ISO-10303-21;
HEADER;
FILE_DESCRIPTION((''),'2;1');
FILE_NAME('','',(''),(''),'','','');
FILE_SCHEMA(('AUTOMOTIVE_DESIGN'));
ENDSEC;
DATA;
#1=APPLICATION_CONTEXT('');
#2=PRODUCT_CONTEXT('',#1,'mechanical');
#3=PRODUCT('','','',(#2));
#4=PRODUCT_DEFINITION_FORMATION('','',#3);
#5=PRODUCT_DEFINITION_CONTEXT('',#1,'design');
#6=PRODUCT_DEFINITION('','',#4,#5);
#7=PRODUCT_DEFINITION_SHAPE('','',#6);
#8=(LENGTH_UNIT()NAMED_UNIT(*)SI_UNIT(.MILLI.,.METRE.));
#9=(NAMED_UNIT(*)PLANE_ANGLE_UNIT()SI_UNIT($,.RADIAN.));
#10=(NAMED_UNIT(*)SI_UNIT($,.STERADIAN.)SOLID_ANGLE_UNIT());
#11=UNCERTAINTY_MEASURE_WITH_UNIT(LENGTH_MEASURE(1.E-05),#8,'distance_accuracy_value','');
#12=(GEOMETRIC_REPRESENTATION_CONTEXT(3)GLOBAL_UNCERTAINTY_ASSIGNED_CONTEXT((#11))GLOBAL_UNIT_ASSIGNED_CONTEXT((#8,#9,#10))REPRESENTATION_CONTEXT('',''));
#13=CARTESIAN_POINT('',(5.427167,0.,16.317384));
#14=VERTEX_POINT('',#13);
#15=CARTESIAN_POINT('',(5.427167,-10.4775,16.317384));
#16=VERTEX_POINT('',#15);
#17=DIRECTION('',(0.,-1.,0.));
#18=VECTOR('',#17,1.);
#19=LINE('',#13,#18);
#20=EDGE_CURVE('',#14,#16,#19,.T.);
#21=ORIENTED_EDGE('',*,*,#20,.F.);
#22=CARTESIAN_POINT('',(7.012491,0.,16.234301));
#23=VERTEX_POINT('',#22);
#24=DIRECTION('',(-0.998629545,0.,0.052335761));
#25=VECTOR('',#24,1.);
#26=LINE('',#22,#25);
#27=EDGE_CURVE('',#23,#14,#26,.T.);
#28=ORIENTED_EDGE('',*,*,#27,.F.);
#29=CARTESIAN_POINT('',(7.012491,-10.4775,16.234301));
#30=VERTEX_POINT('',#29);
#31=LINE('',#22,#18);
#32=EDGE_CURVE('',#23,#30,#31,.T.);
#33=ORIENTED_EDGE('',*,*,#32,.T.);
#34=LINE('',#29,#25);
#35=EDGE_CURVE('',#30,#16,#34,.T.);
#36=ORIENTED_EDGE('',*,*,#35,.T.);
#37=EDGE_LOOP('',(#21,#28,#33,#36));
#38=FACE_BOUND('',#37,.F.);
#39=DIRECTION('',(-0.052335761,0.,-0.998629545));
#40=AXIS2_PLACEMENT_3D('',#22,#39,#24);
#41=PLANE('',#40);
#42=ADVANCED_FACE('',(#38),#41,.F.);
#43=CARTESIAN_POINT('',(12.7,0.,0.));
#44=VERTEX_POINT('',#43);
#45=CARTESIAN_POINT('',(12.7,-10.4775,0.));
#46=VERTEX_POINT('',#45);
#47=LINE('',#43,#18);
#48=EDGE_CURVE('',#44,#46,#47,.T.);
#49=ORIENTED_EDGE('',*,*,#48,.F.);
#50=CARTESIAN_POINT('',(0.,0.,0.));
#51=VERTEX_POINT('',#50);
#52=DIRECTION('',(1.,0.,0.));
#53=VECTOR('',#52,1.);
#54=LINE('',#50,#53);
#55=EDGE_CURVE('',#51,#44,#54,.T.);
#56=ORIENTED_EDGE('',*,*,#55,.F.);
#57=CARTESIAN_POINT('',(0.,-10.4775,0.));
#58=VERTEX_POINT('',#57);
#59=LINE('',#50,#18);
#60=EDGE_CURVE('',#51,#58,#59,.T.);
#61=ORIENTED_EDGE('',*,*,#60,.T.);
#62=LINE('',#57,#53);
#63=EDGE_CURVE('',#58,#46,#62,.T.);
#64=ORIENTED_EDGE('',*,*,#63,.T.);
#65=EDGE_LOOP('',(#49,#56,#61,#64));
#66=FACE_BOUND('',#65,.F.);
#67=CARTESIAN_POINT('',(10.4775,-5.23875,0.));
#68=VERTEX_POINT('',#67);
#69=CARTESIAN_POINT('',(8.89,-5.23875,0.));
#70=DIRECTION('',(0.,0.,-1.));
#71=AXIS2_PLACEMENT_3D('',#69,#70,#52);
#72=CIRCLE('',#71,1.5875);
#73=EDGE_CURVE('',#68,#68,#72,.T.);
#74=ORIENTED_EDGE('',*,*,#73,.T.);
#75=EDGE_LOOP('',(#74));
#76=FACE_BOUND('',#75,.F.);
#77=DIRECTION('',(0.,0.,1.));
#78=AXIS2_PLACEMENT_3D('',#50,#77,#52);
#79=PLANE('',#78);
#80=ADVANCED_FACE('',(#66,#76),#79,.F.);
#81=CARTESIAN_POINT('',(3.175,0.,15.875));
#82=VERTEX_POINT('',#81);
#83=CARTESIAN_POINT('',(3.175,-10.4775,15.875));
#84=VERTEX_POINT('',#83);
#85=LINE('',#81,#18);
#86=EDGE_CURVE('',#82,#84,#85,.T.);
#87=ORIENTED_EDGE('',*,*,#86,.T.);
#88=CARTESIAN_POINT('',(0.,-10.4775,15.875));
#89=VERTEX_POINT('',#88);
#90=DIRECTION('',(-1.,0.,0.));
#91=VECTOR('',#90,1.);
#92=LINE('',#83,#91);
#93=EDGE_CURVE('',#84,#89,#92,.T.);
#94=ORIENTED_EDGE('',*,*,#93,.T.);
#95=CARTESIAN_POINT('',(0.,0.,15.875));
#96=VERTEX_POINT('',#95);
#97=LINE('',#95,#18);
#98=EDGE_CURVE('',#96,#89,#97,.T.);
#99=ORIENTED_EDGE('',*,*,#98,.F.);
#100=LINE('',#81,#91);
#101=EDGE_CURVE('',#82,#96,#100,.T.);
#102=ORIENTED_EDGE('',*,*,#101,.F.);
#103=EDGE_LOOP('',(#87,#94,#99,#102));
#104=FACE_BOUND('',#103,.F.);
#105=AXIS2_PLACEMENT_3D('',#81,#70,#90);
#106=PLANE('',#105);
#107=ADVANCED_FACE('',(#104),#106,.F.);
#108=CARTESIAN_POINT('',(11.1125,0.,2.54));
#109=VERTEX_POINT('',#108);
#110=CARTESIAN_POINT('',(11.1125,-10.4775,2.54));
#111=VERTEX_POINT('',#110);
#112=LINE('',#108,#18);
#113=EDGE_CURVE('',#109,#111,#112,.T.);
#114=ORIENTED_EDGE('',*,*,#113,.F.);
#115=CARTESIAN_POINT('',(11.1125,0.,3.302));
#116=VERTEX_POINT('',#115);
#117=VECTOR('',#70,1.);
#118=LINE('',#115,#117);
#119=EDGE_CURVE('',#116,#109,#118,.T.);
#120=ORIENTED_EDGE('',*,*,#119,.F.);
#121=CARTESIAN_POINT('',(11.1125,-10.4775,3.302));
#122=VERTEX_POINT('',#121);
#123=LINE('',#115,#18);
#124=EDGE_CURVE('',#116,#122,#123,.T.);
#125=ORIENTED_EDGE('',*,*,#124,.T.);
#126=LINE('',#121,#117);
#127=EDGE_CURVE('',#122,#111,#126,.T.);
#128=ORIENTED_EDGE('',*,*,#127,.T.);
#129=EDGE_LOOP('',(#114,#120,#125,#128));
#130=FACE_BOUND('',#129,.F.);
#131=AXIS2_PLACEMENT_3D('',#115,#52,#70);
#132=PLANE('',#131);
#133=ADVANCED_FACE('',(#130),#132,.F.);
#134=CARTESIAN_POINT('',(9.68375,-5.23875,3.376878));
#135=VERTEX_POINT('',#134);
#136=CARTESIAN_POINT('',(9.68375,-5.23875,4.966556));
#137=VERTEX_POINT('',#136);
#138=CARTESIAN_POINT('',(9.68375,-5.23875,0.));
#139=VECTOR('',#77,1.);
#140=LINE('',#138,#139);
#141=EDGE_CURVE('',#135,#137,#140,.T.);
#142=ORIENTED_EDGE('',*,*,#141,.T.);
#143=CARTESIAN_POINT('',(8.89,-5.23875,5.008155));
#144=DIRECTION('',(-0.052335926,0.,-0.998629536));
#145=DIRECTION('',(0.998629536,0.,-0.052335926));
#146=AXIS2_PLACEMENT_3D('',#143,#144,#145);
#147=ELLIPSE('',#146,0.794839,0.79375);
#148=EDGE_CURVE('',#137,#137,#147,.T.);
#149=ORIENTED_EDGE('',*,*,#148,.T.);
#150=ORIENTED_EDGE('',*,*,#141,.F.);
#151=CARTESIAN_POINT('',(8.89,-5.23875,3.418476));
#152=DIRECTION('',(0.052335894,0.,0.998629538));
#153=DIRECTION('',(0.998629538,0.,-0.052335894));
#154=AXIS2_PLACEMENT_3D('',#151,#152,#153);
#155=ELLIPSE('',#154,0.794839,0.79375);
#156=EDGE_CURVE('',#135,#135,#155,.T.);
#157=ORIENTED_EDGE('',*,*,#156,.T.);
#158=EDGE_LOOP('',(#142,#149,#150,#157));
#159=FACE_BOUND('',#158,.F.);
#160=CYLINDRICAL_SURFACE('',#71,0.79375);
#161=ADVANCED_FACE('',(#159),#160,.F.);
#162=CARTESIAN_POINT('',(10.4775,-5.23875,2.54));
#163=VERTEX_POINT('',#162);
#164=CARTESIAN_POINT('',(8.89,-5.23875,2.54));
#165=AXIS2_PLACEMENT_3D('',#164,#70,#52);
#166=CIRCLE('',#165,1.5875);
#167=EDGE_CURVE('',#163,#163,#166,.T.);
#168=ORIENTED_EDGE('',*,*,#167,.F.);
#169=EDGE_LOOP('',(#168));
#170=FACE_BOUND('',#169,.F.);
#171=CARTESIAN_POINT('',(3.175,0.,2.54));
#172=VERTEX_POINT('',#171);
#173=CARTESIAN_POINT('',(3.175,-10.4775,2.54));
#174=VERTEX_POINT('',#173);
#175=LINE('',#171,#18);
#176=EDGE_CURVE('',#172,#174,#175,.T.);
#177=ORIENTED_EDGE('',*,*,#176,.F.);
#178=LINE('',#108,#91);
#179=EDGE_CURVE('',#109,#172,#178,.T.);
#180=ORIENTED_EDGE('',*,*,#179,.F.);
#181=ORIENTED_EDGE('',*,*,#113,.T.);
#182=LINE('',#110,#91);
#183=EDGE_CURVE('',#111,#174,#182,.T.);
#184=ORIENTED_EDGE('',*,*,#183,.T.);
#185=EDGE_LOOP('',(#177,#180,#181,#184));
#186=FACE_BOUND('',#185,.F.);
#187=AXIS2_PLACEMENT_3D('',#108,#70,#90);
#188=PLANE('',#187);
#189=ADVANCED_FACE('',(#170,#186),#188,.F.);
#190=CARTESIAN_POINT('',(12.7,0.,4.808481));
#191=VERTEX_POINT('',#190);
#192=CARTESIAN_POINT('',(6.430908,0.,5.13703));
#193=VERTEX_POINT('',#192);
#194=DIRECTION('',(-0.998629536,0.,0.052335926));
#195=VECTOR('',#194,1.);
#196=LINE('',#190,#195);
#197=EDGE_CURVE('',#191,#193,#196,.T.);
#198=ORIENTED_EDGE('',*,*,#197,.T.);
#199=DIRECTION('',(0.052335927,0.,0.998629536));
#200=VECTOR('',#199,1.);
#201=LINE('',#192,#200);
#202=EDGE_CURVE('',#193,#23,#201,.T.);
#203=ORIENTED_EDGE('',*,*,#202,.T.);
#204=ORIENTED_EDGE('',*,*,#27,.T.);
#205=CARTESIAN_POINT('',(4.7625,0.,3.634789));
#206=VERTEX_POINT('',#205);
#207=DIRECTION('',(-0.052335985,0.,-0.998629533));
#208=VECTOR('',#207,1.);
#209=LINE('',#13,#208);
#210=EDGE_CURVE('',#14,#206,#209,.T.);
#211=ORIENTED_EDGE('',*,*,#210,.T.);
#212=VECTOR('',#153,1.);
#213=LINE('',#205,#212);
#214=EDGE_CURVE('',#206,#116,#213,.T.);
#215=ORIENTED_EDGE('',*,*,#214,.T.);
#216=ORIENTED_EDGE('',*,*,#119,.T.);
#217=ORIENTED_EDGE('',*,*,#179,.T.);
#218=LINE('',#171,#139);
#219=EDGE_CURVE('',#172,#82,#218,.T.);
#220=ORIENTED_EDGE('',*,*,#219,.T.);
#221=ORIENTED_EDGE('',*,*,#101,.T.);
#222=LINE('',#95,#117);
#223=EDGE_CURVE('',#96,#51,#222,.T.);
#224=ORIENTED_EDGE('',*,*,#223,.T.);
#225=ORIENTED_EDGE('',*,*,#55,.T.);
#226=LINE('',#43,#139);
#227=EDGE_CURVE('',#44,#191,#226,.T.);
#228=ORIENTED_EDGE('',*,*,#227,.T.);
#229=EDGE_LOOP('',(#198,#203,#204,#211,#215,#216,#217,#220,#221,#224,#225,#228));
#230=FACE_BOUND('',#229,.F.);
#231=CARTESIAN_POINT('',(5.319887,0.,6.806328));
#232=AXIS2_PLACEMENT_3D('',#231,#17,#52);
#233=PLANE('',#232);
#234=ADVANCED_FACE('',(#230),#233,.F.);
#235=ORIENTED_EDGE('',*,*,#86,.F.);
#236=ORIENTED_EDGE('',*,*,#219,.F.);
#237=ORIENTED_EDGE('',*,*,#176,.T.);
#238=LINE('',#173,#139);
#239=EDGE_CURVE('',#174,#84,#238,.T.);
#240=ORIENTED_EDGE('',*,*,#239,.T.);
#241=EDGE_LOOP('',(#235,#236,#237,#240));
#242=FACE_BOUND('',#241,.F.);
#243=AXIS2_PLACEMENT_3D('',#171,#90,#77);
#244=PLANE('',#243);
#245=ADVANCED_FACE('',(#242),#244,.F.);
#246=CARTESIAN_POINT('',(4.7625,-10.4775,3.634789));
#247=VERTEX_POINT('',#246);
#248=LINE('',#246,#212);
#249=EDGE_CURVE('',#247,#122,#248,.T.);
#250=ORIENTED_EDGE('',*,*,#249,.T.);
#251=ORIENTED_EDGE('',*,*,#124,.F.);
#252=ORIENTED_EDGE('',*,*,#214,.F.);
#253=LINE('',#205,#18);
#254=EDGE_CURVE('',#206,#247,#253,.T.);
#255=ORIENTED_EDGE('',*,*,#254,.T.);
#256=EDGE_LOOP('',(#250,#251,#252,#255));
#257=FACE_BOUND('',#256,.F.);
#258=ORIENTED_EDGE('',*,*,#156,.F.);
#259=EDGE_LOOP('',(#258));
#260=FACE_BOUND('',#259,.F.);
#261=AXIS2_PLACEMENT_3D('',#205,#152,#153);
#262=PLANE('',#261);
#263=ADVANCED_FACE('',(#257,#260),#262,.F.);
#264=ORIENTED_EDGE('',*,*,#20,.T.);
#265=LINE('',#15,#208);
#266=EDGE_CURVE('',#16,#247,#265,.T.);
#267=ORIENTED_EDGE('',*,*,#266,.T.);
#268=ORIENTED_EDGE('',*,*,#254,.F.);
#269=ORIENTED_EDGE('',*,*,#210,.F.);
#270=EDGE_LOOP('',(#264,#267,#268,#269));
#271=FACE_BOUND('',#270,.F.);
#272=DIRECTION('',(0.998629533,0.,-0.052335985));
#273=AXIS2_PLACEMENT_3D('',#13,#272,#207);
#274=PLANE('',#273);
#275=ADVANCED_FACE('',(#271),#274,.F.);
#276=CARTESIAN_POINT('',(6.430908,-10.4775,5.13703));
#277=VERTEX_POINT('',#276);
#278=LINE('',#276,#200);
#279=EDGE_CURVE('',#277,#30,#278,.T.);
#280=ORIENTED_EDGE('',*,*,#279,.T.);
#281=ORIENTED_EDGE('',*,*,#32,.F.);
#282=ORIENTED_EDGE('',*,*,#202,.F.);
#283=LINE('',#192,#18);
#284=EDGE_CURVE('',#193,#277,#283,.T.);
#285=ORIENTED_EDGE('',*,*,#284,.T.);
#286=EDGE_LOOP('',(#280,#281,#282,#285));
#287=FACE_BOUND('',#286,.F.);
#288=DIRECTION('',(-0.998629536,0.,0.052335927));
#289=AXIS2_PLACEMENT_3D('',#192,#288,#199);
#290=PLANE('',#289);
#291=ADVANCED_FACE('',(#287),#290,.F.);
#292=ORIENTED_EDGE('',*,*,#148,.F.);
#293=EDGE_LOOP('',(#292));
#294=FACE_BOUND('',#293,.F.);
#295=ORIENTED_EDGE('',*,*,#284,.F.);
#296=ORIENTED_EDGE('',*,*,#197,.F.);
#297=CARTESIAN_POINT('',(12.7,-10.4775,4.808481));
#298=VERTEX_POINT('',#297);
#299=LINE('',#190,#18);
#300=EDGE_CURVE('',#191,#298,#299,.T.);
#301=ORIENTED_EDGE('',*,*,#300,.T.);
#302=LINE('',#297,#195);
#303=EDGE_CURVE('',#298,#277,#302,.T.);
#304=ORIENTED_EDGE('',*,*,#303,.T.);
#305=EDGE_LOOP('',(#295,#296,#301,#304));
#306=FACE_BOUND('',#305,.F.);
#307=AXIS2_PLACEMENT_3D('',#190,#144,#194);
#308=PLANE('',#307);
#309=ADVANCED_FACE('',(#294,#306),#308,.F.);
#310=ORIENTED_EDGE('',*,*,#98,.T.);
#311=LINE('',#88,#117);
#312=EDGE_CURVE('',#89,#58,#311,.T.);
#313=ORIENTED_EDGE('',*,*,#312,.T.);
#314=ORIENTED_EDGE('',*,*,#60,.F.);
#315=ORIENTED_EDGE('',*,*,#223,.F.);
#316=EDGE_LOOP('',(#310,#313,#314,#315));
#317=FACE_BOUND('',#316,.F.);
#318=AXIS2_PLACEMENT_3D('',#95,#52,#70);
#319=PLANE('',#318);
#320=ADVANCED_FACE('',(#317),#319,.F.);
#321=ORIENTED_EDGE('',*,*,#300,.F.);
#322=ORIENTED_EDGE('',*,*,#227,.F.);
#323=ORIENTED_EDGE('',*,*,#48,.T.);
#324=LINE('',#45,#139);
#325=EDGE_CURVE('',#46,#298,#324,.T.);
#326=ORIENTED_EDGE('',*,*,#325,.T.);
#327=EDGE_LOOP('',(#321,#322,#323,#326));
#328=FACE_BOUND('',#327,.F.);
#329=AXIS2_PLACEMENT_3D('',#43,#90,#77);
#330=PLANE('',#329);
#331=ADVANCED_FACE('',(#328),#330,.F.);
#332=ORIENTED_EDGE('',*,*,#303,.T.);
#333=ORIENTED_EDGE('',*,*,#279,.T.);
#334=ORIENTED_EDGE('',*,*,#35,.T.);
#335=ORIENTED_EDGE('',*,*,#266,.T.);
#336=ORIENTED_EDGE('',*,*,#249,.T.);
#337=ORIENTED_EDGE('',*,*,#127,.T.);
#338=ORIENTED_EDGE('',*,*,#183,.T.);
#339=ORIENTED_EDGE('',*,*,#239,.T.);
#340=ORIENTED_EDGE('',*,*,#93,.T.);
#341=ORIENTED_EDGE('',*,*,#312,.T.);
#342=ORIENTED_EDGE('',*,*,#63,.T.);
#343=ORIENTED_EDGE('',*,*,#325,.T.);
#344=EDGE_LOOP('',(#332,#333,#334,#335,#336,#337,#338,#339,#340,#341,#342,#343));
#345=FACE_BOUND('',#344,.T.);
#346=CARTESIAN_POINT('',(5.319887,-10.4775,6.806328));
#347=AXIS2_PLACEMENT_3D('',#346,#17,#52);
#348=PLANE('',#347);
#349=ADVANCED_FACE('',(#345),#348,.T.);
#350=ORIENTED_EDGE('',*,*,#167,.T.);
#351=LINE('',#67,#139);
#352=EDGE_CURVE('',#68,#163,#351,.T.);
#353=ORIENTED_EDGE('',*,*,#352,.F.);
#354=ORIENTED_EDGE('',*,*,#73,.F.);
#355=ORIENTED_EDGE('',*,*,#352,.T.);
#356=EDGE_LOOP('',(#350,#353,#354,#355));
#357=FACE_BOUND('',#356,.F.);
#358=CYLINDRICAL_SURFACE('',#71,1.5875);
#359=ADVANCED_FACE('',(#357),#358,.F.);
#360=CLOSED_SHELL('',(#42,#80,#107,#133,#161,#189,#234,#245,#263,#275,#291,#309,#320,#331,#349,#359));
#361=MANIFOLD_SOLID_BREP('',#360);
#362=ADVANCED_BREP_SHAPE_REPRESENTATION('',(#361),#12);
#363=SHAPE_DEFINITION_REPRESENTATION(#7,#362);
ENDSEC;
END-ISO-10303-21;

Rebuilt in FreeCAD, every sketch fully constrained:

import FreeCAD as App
import Part
import Sketcher
from FreeCAD import Vector
Q = App.Units.Quantity

doc = App.newDocument("Part")
body = doc.addObject("PartDesign::Body", "Body")

# Sketch on XZ plane
sketch1 = body.newObject("Sketcher::SketchObject", "Sketch")
sketch1.AttachmentSupport = (doc.getObject("XZ_Plane"), [""])
sketch1.MapMode = "FlatFace"
sketch1.addGeometry(Part.LineSegment(Vector(3.2, 15.9, 0), Vector(0, 15.9, 0)), False)
sketch1.addGeometry(Part.LineSegment(Vector(0, 15.9, 0), Vector(0, 0, 0)), False)
sketch1.addGeometry(Part.LineSegment(Vector(0, 0, 0), Vector(12.7, 0, 0)), False)
sketch1.addGeometry(Part.LineSegment(Vector(12.7, 0, 0), Vector(12.7, 4.8, 0)), False)
sketch1.addGeometry(Part.LineSegment(Vector(12.7, 4.8, 0), Vector(6.4, 5.1, 0)), False)
sketch1.addGeometry(Part.LineSegment(Vector(6.4, 5.1, 0), Vector(7, 16.2, 0)), False)
sketch1.addGeometry(Part.LineSegment(Vector(7, 16.2, 0), Vector(5.4, 16.3, 0)), False)
sketch1.addGeometry(Part.LineSegment(Vector(5.4, 16.3, 0), Vector(4.8, 3.6, 0)), False)
sketch1.addGeometry(Part.LineSegment(Vector(4.8, 3.6, 0), Vector(11.1, 3.3, 0)), False)
sketch1.addGeometry(Part.LineSegment(Vector(11.1, 3.3, 0), Vector(11.1, 2.5, 0)), False)
sketch1.addGeometry(Part.LineSegment(Vector(11.1, 2.5, 0), Vector(3.2, 2.5, 0)), False)
sketch1.addGeometry(Part.LineSegment(Vector(3.2, 2.5, 0), Vector(3.2, 15.9, 0)), False)
sketch1.addConstraint(Sketcher.Constraint("Coincident", 0, 2, 1, 1))
sketch1.addConstraint(Sketcher.Constraint("Coincident", 1, 2, 2, 1))
sketch1.addConstraint(Sketcher.Constraint("Coincident", 2, 2, 3, 1))
sketch1.addConstraint(Sketcher.Constraint("Coincident", 3, 2, 4, 1))
sketch1.addConstraint(Sketcher.Constraint("Coincident", 4, 2, 5, 1))
sketch1.addConstraint(Sketcher.Constraint("Coincident", 5, 2, 6, 1))
sketch1.addConstraint(Sketcher.Constraint("Coincident", 6, 2, 7, 1))
sketch1.addConstraint(Sketcher.Constraint("Coincident", 7, 2, 8, 1))
sketch1.addConstraint(Sketcher.Constraint("Coincident", 8, 2, 9, 1))
sketch1.addConstraint(Sketcher.Constraint("Coincident", 9, 2, 10, 1))
sketch1.addConstraint(Sketcher.Constraint("Coincident", 10, 2, 11, 1))
sketch1.addConstraint(Sketcher.Constraint("Coincident", 11, 2, 0, 1))
sketch1.addConstraint(Sketcher.Constraint("Horizontal", 0))
sketch1.addConstraint(Sketcher.Constraint("Vertical", 1))
sketch1.addConstraint(Sketcher.Constraint("Horizontal", 2))
sketch1.addConstraint(Sketcher.Constraint("Vertical", 3))
sketch1.addConstraint(Sketcher.Constraint("Vertical", 9))
sketch1.addConstraint(Sketcher.Constraint("Horizontal", 10))
sketch1.addConstraint(Sketcher.Constraint("Vertical", 11))
sketch1.addConstraint(Sketcher.Constraint("Coincident", 1, 2, -1, 1))
sketch1.addConstraint(Sketcher.Constraint("Perpendicular", 4, 5))
sketch1.addConstraint(Sketcher.Constraint("Perpendicular", 5, 6))
sketch1.addConstraint(Sketcher.Constraint("Perpendicular", 6, 7))
sketch1.addConstraint(Sketcher.Constraint("Perpendicular", 7, 8))
sketch1.addConstraint(Sketcher.Constraint("DistanceX", 2, 1, 2, 2, Q("0.5 in")))
sketch1.addConstraint(Sketcher.Constraint("Angle", 4, Q("177.000002 deg")))
sketch1.addConstraint(Sketcher.Constraint("Distance", 7, Q("0.5 in")))
sketch1.addConstraint(Sketcher.Constraint("DistanceY", 9, 2, 9, 1, Q("0.03 in")))
sketch1.addConstraint(Sketcher.Constraint("DistanceY", -1, 1, 9, 2, Q("0.1 in")))
sketch1.addConstraint(Sketcher.Constraint("DistanceX", 0, 2, 0, 1, Q("0.125 in")))
sketch1.addConstraint(Sketcher.Constraint("DistanceX", 10, 2, 10, 1, Q("0.3125 in")))
sketch1.addConstraint(Sketcher.Constraint("DistanceY", 1, 2, 1, 1, Q("0.625 in")))
sketch1.addConstraint(Sketcher.Constraint("DistanceX", 7, 2, 8, 2, Q("0.25 in")))
sketch1.addConstraint(Sketcher.Constraint("Distance", 5, Q("0.4375 in")))
sketch1.addConstraint(Sketcher.Constraint("Distance", 6, Q("0.0625 in")))
pad1 = body.newObject("PartDesign::Pad", "Pad")
pad1.Profile = sketch1
pad1.Length = Q("0.4125 in")

# Sketch on XY plane
sketch2 = body.newObject("Sketcher::SketchObject", "Sketch001")
sketch2.AttachmentSupport = (doc.getObject("XY_Plane"), [""])
sketch2.MapMode = "FlatFace"
sketch2.addGeometry(Part.Circle(Vector(8.9, -5.2, 0), Vector(0, 0, 1), 1.6), False)
sketch2.addConstraint(Sketcher.Constraint("Diameter", 0, Q("0.125 in")))
sketch2.addConstraint(Sketcher.Constraint("DistanceX", -1, 1, 0, 3, Q("0.35 in")))
sketch2.addConstraint(Sketcher.Constraint("DistanceY", 0, 3, -1, 1, Q("5.23875 mm")))
pocket1 = body.newObject("PartDesign::Pocket", "Pocket")
pocket1.Profile = sketch2
pocket1.Length = Q("0.1 in")
pocket1.Reversed = True

# Sketch on XY plane
sketch3 = body.newObject("Sketcher::SketchObject", "Sketch002")
sketch3.AttachmentSupport = (doc.getObject("XY_Plane"), [""])
sketch3.MapMode = "FlatFace"
sketch3.addGeometry(Part.Circle(Vector(8.9, -5.2, 0), Vector(0, 0, 1), 0.8), False)
sketch3.addConstraint(Sketcher.Constraint("Diameter", 0, Q("0.0625 in")))
sketch3.addConstraint(Sketcher.Constraint("DistanceX", -1, 1, 0, 3, Q("0.35 in")))
sketch3.addConstraint(Sketcher.Constraint("DistanceY", 0, 3, -1, 1, Q("5.23875 mm")))
pocket2 = body.newObject("PartDesign::Pocket", "Pocket001")
pocket2.Profile = sketch3
pocket2.Type = "ThroughAll"
pocket2.Reversed = True

doc.recompute()
